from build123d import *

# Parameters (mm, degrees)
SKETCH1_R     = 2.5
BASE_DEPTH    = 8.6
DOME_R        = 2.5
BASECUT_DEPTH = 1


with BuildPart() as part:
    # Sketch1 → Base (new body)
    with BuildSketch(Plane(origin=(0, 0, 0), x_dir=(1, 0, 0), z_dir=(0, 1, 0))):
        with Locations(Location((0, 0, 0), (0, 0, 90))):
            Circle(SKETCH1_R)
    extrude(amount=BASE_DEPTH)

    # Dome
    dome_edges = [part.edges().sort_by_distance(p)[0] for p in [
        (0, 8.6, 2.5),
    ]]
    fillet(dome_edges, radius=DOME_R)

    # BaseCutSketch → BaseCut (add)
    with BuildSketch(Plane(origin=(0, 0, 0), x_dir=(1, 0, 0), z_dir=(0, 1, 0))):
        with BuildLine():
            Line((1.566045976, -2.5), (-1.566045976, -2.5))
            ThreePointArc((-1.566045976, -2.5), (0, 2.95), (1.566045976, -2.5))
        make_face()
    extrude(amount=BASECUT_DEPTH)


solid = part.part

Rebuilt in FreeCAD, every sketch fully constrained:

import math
import FreeCAD as App
import Part
import Sketcher

V = App.Vector
Q = App.Units.Quantity


def edges_at(feature, points):
    """Names of the edges that pass closest to the given points."""
    edges = feature.Shape.Edges
    near = lambda p: min(range(len(edges)), key=lambda i: edges[i].distToShape(Part.Vertex(*p))[0])
    return sorted({f"Edge{near(p) + 1}" for p in points})

doc = App.newDocument("Part")
params = doc.addObject("Spreadsheet::Sheet", "Params")
for row, (alias, value) in enumerate([
    ("sketch1_diameter", "5 mm"),
    ("pad1_length", "8.6 mm"),
    ("fillet_radius", "2.5 mm"),
    ("sketch2_radius", "2.95 mm"),
    ("pad2_length", "1 mm"),
], start=1):
    params.set(f"A{row}", alias)
    params.set(f"B{row}", "=" + value)
    params.setAlias(f"B{row}", alias)

body = doc.addObject("PartDesign::Body", "Body")

# Sketch on XZ plane
sketch1 = doc.addObject("Sketcher::SketchObject", "Sketch")
body.addObject(sketch1)
sketch1.AttachmentSupport = (doc.XZ_Plane, [""])
sketch1.MapMode = "FlatFace"
sketch1.addGeometry(Part.Circle(V(0, 0, 0), V(0, 0, 1), 2.5), False)
sketch1.addConstraint([
    Sketcher.Constraint("Coincident", 0, 3, -1, 1),
    Sketcher.Constraint("Diameter", 0, Q("5 mm")),
])
sketch1.setExpression("Constraints[1]", "Params.sketch1_diameter")
pad1 = doc.addObject("PartDesign::Pad", "Pad")
body.addObject(pad1)
pad1.Profile = sketch1
pad1.setExpression("Length", "Params.pad1_length")
pad1.Reversed = True
doc.recompute()

fillet = doc.addObject("PartDesign::Fillet", "Fillet")
body.addObject(fillet)
fillet.Base = (pad1, edges_at(pad1, [(0, 8.6, 2.5)]))
fillet.setExpression("Radius", "Params.fillet_radius")

# Sketch on XZ plane
sketch2 = doc.addObject("Sketcher::SketchObject", "Sketch001")
body.addObject(sketch2)
sketch2.AttachmentSupport = (doc.XZ_Plane, [""])
sketch2.MapMode = "FlatFace"
sketch2.addGeometry([
    Part.LineSegment(V(-1.566046, 2.5, 0), V(1.566046, 2.5, 0)),
    Part.ArcOfCircle(Part.Circle(V(0, 0, 0), V(0, 0, 1), 2.95), math.radians(122.063786), math.radians(417.936214)),
], False)
sketch2.addConstraint([
    Sketcher.Constraint("Coincident", 0, 1, 1, 1),
    Sketcher.Constraint("Coincident", 1, 2, 0, 2),
    Sketcher.Constraint("Horizontal", 0),
    Sketcher.Constraint("Coincident", 1, 3, -1, 1),
    Sketcher.Constraint("Radius", 1, Q("2.95 mm")),
    Sketcher.Constraint("DistanceY", -1, 1, 0, 1, Q("2.5 mm")),
])
sketch2.setExpression("Constraints[4]", "Params.sketch2_radius")
pad2 = doc.addObject("PartDesign::Pad", "Pad001")
body.addObject(pad2)
pad2.Profile = sketch2
pad2.setExpression("Length", "Params.pad2_length")
pad2.Reversed = True

doc.recompute()
